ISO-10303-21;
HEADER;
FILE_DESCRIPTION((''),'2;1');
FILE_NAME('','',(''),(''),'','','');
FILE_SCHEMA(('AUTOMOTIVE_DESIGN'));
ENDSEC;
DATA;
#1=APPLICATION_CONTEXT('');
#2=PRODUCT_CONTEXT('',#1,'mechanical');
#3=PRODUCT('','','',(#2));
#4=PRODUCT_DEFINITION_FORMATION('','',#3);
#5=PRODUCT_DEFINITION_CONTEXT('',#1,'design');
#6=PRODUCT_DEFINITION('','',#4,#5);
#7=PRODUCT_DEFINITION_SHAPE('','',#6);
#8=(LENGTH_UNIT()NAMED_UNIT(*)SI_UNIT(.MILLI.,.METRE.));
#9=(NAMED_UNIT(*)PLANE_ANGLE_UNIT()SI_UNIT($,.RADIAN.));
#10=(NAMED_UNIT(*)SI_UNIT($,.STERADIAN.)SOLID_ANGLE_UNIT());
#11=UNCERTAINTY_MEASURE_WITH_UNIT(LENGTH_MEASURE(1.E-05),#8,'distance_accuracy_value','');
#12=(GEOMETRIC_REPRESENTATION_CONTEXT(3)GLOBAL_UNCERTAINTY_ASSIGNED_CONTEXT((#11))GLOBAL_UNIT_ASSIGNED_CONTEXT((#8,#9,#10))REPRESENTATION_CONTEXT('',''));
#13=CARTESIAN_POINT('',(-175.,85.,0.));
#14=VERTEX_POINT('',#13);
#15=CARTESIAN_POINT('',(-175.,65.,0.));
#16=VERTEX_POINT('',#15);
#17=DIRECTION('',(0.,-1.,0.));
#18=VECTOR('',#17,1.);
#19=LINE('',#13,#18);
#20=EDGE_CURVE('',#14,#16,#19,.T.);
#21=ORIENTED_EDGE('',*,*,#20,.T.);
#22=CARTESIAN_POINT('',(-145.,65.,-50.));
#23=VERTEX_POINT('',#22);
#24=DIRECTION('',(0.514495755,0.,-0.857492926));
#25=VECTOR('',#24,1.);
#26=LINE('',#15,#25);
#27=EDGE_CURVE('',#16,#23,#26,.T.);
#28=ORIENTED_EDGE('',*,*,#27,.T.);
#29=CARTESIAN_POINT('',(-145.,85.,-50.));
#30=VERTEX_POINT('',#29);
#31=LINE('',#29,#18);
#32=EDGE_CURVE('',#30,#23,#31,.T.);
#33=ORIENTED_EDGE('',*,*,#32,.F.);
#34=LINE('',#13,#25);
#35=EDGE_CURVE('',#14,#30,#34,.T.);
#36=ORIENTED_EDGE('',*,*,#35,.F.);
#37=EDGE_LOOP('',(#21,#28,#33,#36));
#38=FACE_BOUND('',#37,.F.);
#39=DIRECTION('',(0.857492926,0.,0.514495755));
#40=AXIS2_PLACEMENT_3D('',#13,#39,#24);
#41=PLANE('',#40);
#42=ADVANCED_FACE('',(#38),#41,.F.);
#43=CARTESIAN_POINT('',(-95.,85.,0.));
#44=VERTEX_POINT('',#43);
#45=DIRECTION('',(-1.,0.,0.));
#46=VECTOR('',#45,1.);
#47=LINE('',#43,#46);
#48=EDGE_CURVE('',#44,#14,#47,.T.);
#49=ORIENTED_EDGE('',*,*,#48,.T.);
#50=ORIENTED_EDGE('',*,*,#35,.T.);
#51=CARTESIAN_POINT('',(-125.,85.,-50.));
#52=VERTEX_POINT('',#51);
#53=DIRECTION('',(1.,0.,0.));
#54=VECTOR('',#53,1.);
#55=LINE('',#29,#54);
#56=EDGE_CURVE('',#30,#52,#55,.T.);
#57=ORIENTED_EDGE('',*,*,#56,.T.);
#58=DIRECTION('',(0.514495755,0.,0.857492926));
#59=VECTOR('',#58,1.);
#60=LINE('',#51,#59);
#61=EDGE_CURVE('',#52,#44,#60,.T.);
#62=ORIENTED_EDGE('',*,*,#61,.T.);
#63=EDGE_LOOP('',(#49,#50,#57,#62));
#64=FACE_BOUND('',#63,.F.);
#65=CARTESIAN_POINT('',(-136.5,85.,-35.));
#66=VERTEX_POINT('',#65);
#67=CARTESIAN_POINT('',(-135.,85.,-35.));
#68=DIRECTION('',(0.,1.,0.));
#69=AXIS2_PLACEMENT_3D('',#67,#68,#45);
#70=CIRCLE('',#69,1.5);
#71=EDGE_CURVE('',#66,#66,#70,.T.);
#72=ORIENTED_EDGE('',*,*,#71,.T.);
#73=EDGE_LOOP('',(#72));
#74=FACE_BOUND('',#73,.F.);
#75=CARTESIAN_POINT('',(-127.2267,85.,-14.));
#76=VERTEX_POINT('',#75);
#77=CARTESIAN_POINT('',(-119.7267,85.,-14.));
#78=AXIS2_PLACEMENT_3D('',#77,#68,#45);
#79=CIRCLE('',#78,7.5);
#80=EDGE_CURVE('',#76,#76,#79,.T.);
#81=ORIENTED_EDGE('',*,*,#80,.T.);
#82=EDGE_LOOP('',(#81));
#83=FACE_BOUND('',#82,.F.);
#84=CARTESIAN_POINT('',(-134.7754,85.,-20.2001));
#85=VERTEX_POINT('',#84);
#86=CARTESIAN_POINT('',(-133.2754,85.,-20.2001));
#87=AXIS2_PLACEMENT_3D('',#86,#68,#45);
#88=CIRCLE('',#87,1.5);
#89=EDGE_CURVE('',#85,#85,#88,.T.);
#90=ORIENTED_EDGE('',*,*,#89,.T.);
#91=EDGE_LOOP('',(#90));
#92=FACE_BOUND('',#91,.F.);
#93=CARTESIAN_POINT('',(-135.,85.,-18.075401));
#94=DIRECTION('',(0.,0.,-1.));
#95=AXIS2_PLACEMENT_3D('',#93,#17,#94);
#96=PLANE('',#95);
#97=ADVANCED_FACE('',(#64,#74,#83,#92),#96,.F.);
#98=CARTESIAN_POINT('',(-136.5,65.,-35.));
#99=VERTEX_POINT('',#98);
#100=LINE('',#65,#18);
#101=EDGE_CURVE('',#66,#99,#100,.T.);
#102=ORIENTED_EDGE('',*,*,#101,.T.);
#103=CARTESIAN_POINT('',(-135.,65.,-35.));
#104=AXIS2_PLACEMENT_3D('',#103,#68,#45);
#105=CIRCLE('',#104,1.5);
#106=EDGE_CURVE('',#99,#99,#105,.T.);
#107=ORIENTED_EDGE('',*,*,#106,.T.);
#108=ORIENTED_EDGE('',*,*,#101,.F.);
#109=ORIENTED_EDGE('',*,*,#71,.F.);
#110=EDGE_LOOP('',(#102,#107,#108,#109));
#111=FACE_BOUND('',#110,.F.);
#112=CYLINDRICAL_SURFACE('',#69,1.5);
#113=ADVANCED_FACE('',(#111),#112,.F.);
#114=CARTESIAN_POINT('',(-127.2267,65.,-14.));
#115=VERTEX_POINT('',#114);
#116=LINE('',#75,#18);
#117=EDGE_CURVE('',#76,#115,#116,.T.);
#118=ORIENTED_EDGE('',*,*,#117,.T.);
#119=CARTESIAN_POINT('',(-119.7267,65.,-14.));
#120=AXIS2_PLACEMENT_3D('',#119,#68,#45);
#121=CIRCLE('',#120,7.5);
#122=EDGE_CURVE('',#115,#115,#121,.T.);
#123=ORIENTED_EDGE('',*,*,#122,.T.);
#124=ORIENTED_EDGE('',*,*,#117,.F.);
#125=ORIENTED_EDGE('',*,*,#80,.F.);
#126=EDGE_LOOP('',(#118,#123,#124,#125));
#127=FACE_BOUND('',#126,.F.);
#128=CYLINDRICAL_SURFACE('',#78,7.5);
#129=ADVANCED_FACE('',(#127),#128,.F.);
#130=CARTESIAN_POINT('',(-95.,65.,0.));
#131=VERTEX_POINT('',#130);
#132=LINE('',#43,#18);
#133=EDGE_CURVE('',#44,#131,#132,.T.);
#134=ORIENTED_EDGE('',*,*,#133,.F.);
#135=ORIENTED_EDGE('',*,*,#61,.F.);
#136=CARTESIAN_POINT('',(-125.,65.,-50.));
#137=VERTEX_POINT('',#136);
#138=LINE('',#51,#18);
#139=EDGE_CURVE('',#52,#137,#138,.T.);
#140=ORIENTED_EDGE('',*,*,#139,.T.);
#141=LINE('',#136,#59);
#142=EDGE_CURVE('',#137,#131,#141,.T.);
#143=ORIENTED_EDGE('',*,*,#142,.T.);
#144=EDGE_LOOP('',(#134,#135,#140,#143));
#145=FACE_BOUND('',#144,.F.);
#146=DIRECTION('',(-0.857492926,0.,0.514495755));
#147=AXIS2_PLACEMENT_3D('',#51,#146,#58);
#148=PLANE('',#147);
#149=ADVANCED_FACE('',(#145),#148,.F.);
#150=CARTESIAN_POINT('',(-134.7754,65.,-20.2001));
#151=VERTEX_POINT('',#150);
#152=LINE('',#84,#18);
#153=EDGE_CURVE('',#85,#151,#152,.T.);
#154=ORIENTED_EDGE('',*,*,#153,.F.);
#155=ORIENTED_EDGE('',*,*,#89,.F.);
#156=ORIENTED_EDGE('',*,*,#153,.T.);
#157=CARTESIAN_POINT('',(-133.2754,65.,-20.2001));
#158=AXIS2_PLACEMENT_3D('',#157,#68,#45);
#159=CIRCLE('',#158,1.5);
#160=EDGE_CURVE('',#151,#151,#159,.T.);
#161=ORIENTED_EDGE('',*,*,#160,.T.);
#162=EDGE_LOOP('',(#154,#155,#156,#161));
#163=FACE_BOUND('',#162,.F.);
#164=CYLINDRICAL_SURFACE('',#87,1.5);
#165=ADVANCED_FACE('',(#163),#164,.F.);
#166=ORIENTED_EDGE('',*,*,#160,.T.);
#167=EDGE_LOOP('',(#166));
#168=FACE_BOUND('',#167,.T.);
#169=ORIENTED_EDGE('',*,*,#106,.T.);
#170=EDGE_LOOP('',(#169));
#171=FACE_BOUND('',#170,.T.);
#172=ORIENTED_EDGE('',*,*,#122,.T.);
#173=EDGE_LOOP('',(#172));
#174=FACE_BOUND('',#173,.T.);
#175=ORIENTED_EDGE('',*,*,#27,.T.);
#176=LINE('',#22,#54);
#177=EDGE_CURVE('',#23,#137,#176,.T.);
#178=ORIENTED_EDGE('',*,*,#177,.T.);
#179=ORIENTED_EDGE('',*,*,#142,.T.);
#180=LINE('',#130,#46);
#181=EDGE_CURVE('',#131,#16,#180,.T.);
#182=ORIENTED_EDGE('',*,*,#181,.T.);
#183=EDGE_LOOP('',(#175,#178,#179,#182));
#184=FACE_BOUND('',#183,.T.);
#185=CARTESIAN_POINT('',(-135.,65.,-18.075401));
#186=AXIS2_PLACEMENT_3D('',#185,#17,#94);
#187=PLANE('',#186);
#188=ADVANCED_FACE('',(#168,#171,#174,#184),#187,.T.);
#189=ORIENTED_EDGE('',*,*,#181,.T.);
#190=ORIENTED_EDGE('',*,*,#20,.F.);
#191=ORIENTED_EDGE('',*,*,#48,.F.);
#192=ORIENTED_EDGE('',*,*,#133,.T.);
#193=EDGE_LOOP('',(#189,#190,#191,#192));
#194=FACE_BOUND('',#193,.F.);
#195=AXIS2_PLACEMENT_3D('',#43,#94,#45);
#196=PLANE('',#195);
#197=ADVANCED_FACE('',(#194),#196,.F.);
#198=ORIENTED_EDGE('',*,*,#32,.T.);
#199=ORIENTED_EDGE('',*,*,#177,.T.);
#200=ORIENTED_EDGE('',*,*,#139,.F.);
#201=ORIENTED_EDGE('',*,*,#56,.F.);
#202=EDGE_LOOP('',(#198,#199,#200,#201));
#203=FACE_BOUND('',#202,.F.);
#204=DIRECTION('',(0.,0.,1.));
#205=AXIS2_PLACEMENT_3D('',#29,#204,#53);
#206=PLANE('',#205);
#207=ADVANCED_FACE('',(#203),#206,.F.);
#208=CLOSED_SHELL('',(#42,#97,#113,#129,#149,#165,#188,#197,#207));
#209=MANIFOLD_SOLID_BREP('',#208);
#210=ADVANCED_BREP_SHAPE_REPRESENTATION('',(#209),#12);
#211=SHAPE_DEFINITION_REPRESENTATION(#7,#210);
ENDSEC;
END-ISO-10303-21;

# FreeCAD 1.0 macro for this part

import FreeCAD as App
import Part
import Sketcher

doc = App.newDocument("Part")
body = doc.addObject("PartDesign::Body", "Body")

# Sketch on XZ plane
sketch1 = doc.addObject("Sketcher::SketchObject", "Sketch")
body.addObject(sketch1)
sketch1.AttachmentSupport = (doc.XZ_Plane, [""])
sketch1.MapMode = "FlatFace"
sketch1.AttachmentOffset = App.Placement(App.Vector(0, 0, -85), App.Rotation())
sketch1.addGeometry([
    Part.LineSegment(App.Vector(-145, -50, 0), App.Vector(-175, 0, 0)),  # 0
    Part.LineSegment(App.Vector(-175, 0, 0), App.Vector(-95, 0, 0)),  # 1
    Part.LineSegment(App.Vector(-95, 0, 0), App.Vector(-125, -50, 0)),  # 2
    Part.LineSegment(App.Vector(-125, -50, 0), App.Vector(-145, -50, 0)),  # 3
    Part.Circle(App.Vector(-135, -35, 0), App.Vector(0, 0, 1), 1.5),  # 4
    Part.Circle(App.Vector(-133.2754, -20.2001, 0), App.Vector(0, 0, 1), 1.5),  # 5
    Part.Circle(App.Vector(-119.7267, -14, 0), App.Vector(0, 0, 1), 7.5),  # 6
], False)
sketch1.addConstraint([
    Sketcher.Constraint("Coincident", 0, 2, 1, 1),
    Sketcher.Constraint("Coincident", 1, 2, 2, 1),
    Sketcher.Constraint("Coincident", 2, 2, 3, 1),
    Sketcher.Constraint("Coincident", 3, 2, 0, 1),
    Sketcher.Constraint("Horizontal", 1),
    Sketcher.Constraint("Horizontal", 3),
    Sketcher.Constraint("Equal", 4, 5),
    Sketcher.Constraint("PointOnObject", 0, 2, -1),
    Sketcher.Constraint("Equal", 0, 2),
    Sketcher.Constraint("Diameter", 4, 3.0),
    Sketcher.Constraint("Diameter", 6, 15.0),
    Sketcher.Constraint("DistanceX", 1, 1, 1, 2, 80.0),
    Sketcher.Constraint("DistanceX", 3, 2, 3, 1, 20.0),
    Sketcher.Constraint("DistanceX", 4, 3, -1, 1, 135.0),
    Sketcher.Constraint("DistanceY", 4, 3, -1, 1, 35.0),
    Sketcher.Constraint("DistanceY", 6, 3, -1, 1, 14.0),
    Sketcher.Constraint("DistanceX", 0, 2, -1, 1, 175.0),
    Sketcher.Constraint("DistanceY", 2, 2, -1, 1, 50.0),
    Sketcher.Constraint("DistanceY", 5, 3, -1, 1, 20.2),
    Sketcher.Constraint("DistanceX", 5, 3, -1, 1, 133.2754),
    Sketcher.Constraint("DistanceX", 6, 3, -1, 1, 119.7267),
])
pad1 = doc.addObject("PartDesign::Pad", "Pad")
body.addObject(pad1)
pad1.Profile = sketch1
pad1.Length = 20

doc.recompute()
